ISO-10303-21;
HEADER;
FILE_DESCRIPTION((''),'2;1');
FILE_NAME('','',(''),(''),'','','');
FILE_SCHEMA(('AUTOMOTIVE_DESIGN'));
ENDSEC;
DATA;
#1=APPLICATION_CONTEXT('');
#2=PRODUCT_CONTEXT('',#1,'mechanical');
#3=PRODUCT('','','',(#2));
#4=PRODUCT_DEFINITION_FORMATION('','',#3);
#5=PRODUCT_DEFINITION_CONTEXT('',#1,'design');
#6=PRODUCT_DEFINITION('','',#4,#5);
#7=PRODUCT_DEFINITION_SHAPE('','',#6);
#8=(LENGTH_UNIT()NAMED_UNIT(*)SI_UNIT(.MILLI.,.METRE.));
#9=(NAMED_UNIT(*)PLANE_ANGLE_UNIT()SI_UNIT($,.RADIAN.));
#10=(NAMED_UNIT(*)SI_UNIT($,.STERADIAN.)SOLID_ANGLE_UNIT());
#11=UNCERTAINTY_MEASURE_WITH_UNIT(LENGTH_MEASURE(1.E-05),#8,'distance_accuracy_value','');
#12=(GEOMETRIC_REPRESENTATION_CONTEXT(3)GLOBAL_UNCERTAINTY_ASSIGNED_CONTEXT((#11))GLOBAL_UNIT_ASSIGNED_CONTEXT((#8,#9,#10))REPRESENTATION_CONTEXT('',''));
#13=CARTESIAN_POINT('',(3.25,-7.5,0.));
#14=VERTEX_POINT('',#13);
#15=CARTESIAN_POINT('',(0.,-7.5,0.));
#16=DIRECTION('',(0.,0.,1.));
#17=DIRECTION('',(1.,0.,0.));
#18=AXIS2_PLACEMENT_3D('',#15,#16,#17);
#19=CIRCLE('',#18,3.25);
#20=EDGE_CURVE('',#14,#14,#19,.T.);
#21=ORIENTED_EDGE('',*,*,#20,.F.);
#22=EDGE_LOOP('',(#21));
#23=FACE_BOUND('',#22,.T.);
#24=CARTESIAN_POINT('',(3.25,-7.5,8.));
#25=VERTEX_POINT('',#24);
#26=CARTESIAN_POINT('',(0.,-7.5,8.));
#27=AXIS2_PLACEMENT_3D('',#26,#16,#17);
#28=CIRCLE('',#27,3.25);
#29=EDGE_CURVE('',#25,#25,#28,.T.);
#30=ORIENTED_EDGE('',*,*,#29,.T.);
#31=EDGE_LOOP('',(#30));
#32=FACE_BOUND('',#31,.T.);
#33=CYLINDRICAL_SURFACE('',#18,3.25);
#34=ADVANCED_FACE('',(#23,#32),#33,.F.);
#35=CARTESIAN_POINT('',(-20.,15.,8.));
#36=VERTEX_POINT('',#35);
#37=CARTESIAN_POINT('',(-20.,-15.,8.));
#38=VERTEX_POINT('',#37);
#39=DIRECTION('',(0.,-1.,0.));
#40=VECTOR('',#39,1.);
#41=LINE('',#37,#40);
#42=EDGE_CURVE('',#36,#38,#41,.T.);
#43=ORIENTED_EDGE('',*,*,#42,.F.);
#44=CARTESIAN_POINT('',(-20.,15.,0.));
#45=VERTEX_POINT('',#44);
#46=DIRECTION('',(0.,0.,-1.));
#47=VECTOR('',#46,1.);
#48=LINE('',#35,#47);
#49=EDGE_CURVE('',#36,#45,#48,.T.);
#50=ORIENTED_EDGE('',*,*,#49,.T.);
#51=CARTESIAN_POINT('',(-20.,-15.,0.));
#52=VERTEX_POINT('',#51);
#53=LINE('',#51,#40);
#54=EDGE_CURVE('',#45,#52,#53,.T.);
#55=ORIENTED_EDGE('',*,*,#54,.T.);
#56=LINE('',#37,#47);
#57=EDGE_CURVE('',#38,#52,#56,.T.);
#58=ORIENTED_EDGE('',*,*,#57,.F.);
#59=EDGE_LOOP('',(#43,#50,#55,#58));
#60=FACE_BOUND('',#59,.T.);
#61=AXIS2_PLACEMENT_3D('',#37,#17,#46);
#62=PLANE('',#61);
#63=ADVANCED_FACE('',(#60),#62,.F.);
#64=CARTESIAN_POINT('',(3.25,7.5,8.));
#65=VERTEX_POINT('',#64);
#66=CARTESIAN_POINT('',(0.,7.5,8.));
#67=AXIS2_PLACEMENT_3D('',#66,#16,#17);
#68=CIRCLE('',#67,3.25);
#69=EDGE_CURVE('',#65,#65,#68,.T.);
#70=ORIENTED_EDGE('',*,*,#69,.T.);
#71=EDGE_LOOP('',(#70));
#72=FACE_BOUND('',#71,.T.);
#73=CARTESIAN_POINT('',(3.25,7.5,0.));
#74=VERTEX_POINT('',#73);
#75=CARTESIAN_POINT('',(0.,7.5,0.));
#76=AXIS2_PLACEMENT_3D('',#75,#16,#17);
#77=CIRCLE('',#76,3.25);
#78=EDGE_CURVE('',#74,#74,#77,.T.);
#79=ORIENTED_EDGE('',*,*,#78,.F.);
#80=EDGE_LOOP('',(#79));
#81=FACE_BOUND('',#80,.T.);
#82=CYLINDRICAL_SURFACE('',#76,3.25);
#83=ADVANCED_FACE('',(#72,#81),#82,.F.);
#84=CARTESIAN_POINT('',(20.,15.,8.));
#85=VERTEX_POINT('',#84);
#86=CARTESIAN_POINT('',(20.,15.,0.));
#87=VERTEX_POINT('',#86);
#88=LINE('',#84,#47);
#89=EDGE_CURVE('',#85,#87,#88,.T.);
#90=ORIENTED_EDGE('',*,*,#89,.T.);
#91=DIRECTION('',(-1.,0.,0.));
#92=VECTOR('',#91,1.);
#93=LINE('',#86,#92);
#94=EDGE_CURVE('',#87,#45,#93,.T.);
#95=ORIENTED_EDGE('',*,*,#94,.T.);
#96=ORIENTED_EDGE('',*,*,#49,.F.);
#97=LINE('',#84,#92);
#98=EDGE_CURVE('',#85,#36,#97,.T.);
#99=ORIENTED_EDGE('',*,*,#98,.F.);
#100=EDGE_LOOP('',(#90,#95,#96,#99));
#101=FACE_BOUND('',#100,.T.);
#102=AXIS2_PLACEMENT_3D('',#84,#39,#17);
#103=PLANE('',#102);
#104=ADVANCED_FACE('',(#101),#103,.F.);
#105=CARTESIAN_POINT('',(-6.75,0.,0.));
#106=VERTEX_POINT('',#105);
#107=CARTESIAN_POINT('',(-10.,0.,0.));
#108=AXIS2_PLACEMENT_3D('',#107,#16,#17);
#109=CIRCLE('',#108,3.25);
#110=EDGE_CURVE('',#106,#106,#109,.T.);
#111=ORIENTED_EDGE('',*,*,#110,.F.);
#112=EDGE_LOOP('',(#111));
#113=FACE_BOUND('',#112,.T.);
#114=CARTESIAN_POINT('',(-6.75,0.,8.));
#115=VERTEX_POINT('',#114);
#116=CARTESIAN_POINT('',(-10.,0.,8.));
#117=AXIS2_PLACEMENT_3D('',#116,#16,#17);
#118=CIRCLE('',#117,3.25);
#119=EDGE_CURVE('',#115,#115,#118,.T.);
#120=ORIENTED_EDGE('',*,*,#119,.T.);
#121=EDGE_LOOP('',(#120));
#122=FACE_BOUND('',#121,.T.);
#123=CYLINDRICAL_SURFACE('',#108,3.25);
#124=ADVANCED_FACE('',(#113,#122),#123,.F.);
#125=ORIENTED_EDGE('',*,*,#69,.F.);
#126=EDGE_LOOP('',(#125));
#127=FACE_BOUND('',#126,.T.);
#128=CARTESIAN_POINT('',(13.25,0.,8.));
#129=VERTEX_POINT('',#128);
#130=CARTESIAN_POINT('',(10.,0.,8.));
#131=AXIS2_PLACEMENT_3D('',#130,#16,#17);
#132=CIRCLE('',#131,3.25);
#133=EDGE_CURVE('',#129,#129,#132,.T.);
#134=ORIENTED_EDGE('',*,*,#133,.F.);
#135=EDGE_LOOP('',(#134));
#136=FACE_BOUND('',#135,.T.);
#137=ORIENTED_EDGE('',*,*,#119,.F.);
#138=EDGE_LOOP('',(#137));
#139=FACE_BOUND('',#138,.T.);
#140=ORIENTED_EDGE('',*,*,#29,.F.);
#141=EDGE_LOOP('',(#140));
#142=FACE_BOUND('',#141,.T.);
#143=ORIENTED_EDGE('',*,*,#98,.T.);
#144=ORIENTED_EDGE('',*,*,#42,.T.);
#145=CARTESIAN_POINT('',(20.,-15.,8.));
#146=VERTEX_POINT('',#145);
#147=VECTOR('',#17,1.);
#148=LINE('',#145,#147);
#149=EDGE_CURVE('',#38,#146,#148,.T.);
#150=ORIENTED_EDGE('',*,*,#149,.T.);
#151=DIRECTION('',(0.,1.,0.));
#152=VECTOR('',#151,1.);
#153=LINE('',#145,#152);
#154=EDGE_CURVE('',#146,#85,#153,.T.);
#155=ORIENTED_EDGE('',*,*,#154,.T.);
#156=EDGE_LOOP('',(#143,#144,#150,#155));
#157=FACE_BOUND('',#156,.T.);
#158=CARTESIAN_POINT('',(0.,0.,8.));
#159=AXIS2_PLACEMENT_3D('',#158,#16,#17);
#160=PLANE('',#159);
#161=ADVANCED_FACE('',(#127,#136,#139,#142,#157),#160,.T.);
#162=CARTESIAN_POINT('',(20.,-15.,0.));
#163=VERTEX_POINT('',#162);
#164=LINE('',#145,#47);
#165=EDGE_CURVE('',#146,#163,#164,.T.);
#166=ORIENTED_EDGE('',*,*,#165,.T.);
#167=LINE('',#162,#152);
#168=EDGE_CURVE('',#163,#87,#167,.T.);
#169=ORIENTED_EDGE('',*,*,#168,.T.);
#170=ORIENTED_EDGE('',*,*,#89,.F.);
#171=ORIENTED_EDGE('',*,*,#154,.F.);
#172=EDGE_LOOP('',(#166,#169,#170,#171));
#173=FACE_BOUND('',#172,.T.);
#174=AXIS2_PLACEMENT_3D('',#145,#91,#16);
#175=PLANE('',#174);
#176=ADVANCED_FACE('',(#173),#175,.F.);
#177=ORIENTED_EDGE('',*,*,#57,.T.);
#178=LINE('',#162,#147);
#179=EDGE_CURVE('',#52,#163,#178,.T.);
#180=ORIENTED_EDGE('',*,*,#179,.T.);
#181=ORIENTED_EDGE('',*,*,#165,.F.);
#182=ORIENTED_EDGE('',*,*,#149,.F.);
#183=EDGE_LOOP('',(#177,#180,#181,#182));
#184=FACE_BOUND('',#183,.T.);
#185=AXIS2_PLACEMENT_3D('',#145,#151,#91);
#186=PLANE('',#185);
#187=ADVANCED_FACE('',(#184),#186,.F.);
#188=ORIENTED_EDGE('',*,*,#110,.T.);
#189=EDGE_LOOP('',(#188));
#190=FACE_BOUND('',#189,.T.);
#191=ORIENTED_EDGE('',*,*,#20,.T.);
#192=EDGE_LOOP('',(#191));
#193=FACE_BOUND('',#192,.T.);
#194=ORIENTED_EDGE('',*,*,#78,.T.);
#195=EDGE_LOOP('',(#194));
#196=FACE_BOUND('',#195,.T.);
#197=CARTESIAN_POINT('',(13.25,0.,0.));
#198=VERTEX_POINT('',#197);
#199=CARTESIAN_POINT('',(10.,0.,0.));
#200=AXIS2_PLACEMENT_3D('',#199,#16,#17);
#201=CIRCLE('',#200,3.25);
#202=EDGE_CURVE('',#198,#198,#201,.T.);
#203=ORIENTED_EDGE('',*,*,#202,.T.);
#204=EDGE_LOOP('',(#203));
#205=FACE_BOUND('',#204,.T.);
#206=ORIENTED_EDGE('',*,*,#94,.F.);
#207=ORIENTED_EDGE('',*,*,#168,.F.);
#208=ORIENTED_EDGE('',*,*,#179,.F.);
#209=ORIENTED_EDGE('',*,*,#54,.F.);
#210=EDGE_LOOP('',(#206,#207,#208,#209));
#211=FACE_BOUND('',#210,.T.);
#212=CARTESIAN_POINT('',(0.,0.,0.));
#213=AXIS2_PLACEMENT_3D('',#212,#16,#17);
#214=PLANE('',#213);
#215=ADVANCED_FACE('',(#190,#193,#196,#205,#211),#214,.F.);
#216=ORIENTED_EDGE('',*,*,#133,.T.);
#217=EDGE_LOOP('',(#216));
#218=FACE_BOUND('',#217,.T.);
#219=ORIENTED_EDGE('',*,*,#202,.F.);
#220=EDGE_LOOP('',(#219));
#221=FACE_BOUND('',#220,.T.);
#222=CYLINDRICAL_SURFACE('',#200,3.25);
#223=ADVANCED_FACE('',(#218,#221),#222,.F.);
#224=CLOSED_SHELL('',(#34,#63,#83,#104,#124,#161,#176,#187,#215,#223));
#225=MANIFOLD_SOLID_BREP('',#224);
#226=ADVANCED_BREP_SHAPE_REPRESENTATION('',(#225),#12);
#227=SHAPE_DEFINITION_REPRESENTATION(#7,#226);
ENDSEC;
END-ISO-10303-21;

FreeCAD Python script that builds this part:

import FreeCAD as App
import Part
import Sketcher
Q = App.Units.Quantity


def add_polygon(sketch, points):
    """Adds a closed chain of lines whose ends are joined by coincident constraints."""
    first, n = sketch.GeometryCount, len(points)
    for a, b in zip(points, points[1:] + points[:1]):
        sketch.addGeometry(Part.LineSegment(App.Vector(*a, 0), App.Vector(*b, 0)), False)
    for i in range(n):
        sketch.addConstraint(Sketcher.Constraint("Coincident", first + i, 2, first + (i + 1) % n, 1))

doc = App.newDocument("Part")
params = doc.addObject("Spreadsheet::Sheet", "Params")
for row, (alias, value) in enumerate([
    ("sketch1_width", "40 mm"),
    ("sketch1_height", "30 mm"),
    ("pad1_length", "8 mm"),
    ("sketch2_diameter", "6.5 mm"),
], start=1):
    params.set(f"A{row}", alias)
    params.set(f"B{row}", "=" + value)
    params.setAlias(f"B{row}", alias)

body = doc.addObject("PartDesign::Body", "Body")

# Sketch on XY plane
sketch1 = doc.addObject("Sketcher::SketchObject", "Sketch")
body.addObject(sketch1)
sketch1.AttachmentSupport = (doc.XY_Plane, [""])
sketch1.MapMode = "FlatFace"
add_polygon(sketch1, [(-20, 15), (-20, -15), (20, -15), (20, 15)])  # lines 0-3
sketch1.addConstraint([
    Sketcher.Constraint("Vertical", 0),
    Sketcher.Constraint("Horizontal", 1),
    Sketcher.Constraint("Vertical", 2),
    Sketcher.Constraint("Horizontal", 3),
    Sketcher.Constraint("Symmetric", 0, 2, 2, 2, -1, 1),
    Sketcher.Constraint("DistanceX", 1, 1, 1, 2, Q("40 mm")),
    Sketcher.Constraint("DistanceY", 0, 2, 0, 1, Q("30 mm")),
])
sketch1.setExpression("Constraints[9]", "Params.sketch1_width")
sketch1.setExpression("Constraints[10]", "Params.sketch1_height")
pad1 = doc.addObject("PartDesign::Pad", "Pad")
body.addObject(pad1)
pad1.Profile = sketch1
pad1.setExpression("Length", "Params.pad1_length")

# Sketch on XY plane
sketch2 = doc.addObject("Sketcher::SketchObject", "Sketch001")
body.addObject(sketch2)
sketch2.AttachmentSupport = (doc.XY_Plane, [""])
sketch2.MapMode = "FlatFace"
sketch2.AttachmentOffset = App.Placement(App.Vector(0, 0, 8), App.Rotation())
sketch2.addGeometry([
    Part.Circle(App.Vector(-10, 0, 0), App.Vector(0, 0, 1), 3.2),
    Part.Circle(App.Vector(10, 0, 0), App.Vector(0, 0, 1), 3.2),
    Part.Circle(App.Vector(0, 7.5, 0), App.Vector(0, 0, 1), 3.2),
    Part.Circle(App.Vector(0, -7.5, 0), App.Vector(0, 0, 1), 3.2),
], False)
sketch2.addConstraint([
    Sketcher.Constraint("Equal", 0, 1),
    Sketcher.Constraint("Equal", 1, 2),
    Sketcher.Constraint("Equal", 2, 3),
    Sketcher.Constraint("Symmetric", 0, 3, 1, 3, -1, 1),
    Sketcher.Constraint("Symmetric", 2, 3, 3, 3, -1, 1),
    Sketcher.Constraint("PointOnObject", 0, 3, -1),
    Sketcher.Constraint("PointOnObject", 2, 3, -2),
    Sketcher.Constraint("Diameter", 0, Q("6.5 mm")),
    Sketcher.Constraint("DistanceX", 0, 3, -1, 1, Q("10 mm")),
    Sketcher.Constraint("DistanceY", 3, 3, 2, 3, Q("15 mm")),
])
sketch2.setExpression("Constraints[7]", "Params.sketch2_diameter")
pocket1 = doc.addObject("PartDesign::Pocket", "Pocket")
body.addObject(pocket1)
pocket1.Profile = sketch2
pocket1.Type = "ThroughAll"

doc.recompute()
